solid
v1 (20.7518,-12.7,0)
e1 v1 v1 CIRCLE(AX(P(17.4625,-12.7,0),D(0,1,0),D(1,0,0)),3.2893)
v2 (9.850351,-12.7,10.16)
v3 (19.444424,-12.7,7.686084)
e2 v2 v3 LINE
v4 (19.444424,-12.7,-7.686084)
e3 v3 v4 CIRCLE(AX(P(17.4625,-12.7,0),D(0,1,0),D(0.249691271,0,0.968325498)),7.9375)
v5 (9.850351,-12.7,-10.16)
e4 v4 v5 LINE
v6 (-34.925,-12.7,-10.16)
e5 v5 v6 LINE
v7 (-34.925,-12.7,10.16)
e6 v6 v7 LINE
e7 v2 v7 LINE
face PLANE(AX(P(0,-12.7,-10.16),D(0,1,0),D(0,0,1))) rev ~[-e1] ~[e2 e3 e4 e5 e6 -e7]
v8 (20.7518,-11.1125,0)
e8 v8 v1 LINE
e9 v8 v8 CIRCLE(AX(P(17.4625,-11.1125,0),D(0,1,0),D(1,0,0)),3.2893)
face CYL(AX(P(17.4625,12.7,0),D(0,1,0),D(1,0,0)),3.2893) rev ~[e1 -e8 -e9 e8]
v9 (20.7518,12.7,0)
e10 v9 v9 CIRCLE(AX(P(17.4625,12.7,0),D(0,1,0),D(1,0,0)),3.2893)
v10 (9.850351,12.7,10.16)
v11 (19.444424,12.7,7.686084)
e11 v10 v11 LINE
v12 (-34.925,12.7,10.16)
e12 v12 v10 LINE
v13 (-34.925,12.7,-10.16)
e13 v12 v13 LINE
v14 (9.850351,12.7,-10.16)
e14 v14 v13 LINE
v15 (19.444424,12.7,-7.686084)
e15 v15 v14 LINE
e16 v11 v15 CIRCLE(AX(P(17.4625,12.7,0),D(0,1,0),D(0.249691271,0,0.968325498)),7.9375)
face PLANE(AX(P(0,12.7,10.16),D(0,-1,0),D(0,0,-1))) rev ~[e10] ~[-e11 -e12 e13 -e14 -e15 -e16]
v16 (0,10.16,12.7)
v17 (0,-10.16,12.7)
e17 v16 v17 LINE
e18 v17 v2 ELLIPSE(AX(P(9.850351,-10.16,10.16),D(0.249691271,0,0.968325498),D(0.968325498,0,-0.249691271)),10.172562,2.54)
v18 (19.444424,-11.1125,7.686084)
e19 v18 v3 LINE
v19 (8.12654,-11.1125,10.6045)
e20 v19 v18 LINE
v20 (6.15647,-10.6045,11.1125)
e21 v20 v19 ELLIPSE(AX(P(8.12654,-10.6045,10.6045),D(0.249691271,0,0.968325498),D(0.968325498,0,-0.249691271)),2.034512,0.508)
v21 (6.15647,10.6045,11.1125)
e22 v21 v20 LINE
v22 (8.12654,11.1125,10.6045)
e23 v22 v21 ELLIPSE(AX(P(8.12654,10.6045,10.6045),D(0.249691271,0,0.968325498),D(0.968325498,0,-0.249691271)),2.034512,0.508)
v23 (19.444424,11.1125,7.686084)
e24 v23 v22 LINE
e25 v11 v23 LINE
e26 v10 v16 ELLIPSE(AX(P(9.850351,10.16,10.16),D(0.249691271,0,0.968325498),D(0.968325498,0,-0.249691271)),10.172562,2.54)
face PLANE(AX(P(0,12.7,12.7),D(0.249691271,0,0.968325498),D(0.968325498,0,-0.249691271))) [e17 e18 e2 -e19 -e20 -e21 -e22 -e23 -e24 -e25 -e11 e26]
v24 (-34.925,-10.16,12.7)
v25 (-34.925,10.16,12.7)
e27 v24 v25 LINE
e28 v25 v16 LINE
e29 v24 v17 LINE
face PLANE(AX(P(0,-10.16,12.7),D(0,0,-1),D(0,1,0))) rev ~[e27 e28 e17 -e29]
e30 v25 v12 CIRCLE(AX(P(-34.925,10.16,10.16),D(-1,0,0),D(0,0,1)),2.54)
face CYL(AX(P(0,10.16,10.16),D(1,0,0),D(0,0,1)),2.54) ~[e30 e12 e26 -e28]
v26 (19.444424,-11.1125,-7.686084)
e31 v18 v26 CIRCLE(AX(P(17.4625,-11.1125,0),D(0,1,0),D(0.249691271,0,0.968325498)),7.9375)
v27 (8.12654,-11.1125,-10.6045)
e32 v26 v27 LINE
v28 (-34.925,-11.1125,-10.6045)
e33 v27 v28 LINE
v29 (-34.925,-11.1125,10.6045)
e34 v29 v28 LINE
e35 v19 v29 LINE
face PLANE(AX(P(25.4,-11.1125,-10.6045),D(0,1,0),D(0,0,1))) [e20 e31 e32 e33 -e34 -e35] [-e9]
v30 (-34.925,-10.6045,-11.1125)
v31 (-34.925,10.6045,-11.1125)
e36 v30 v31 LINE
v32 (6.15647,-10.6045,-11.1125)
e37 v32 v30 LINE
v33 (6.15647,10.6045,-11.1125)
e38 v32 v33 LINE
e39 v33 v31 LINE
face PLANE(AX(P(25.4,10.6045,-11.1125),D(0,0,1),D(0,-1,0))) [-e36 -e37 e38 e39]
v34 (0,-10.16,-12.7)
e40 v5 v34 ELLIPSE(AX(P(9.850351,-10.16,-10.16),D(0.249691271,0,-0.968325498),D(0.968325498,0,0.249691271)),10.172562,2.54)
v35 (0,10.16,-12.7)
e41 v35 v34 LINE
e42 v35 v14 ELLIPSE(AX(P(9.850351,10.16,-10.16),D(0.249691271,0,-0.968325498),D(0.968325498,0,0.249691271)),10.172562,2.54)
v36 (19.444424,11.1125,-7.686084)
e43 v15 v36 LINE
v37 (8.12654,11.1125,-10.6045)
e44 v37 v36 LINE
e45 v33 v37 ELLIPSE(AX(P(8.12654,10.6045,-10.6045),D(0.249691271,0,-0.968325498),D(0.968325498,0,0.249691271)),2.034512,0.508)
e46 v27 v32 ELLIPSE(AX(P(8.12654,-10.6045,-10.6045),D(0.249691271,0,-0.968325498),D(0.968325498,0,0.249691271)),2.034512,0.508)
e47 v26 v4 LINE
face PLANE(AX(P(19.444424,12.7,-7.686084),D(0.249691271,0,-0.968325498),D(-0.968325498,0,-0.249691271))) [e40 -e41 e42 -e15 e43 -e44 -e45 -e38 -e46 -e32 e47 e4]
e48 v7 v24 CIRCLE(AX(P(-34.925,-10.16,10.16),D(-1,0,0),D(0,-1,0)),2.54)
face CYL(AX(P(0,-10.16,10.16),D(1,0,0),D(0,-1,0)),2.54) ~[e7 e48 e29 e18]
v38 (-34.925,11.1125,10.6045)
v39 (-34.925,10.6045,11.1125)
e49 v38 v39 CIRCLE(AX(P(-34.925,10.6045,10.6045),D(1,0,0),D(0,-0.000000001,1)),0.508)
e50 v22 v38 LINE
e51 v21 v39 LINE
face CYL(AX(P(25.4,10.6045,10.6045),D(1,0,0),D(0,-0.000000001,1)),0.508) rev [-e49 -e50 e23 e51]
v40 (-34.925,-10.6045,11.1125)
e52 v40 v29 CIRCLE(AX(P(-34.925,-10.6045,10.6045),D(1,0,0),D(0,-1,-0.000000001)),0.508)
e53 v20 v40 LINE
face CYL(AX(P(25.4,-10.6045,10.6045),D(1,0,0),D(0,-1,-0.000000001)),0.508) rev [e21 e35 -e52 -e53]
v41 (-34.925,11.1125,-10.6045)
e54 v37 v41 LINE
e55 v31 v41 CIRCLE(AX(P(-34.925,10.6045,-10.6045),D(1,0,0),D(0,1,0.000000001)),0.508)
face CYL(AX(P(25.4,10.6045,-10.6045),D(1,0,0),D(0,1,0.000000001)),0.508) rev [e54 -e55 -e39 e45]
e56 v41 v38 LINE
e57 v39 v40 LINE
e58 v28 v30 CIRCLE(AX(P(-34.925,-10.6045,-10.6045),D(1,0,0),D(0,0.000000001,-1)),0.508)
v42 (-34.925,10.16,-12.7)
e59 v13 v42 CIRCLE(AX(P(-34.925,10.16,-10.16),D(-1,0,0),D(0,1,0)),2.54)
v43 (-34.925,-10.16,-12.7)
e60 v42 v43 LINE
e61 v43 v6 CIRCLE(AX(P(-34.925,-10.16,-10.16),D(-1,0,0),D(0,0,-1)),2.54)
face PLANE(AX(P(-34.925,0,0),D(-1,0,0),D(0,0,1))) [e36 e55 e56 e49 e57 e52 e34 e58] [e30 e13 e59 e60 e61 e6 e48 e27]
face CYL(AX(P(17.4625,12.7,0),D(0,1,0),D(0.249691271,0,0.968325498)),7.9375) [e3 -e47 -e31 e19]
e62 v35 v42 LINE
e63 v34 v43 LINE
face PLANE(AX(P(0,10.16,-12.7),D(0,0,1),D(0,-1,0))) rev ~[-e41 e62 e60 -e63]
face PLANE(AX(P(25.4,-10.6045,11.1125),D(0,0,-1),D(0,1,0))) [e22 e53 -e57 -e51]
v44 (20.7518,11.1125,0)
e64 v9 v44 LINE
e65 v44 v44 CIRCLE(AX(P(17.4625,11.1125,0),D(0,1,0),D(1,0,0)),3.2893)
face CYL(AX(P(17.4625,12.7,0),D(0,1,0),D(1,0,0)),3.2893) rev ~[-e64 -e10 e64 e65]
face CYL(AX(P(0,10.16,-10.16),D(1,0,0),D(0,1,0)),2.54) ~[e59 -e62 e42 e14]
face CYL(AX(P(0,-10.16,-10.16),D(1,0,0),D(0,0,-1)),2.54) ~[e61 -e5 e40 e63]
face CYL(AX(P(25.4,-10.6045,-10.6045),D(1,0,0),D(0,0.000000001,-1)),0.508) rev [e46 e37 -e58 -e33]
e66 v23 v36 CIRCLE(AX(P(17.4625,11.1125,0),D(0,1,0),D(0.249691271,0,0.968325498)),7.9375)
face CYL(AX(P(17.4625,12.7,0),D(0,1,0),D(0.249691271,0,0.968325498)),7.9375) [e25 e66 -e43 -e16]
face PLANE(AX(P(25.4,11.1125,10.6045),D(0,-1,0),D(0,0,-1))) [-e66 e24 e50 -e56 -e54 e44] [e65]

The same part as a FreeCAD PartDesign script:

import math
import FreeCAD as App
import Part
import Sketcher
from FreeCAD import Vector
Q = App.Units.Quantity

doc = App.newDocument("Part")
body = doc.addObject("PartDesign::Body", "Body")

sketch1 = doc.addObject("Sketcher::SketchObject", "Sketch")
body.addObject(sketch1)
sketch1.AttachmentSupport = (doc.YZ_Plane, [""])
sketch1.MapMode = "FlatFace"
sketch1.addGeometry([
    Part.LineSegment(Vector(12.7, -10.2, 0), Vector(12.7, 10.2, 0)),
    Part.ArcOfCircle(Part.Circle(Vector(10.2, 10.2, 0), Vector(0, 0, 1), 2.5), math.radians(0), math.radians(90)),
    Part.LineSegment(Vector(10.2, 12.7, 0), Vector(-10.2, 12.7, 0)),
    Part.ArcOfCircle(Part.Circle(Vector(-10.2, 10.2, 0), Vector(0, 0, 1), 2.5), math.radians(90), math.radians(180)),
    Part.LineSegment(Vector(-12.7, 10.2, 0), Vector(-12.7, -10.2, 0)),
    Part.ArcOfCircle(Part.Circle(Vector(-10.2, -10.2, 0), Vector(0, 0, 1), 2.5), math.radians(-180), math.radians(-90)),
    Part.LineSegment(Vector(-10.2, -12.7, 0), Vector(10.2, -12.7, 0)),
    Part.ArcOfCircle(Part.Circle(Vector(10.2, -10.2, 0), Vector(0, 0, 1), 2.5), math.radians(-90), math.radians(0)),
], False)
sketch1.addConstraint([
    Sketcher.Constraint("Tangent", 0, 2, 1, 1),
    Sketcher.Constraint("Tangent", 1, 2, 2, 1),
    Sketcher.Constraint("Tangent", 2, 2, 3, 1),
    Sketcher.Constraint("Tangent", 3, 2, 4, 1),
    Sketcher.Constraint("Tangent", 4, 2, 5, 1),
    Sketcher.Constraint("Tangent", 5, 2, 6, 1),
    Sketcher.Constraint("Tangent", 6, 2, 7, 1),
    Sketcher.Constraint("Tangent", 7, 2, 0, 1),
    Sketcher.Constraint("Vertical", 0),
    Sketcher.Constraint("Horizontal", 2),
    Sketcher.Constraint("Vertical", 4),
    Sketcher.Constraint("Horizontal", 6),
    Sketcher.Constraint("Equal", 1, 3),
    Sketcher.Constraint("Equal", 3, 5),
    Sketcher.Constraint("Equal", 5, 7),
    Sketcher.Constraint("Symmetric", 1, 3, 5, 3, -1, 1),
    Sketcher.Constraint("Equal", 6, 0),
    Sketcher.Constraint("Radius", 1, Q("0.1 in")),
    Sketcher.Constraint("DistanceX", 2, 2, 2, 1, Q("0.8 in")),
])
pad1 = doc.addObject("PartDesign::Pad", "Pad")
body.addObject(pad1)
pad1.Profile = sketch1
pad1.Type = "TwoLengths"
pad1.Length = Q("1 in")
pad1.Length2 = Q("1.375 in")

sketch2 = doc.addObject("Sketcher::SketchObject", "Sketch001")
body.addObject(sketch2)
sketch2.AttachmentSupport = (doc.YZ_Plane, [""])
sketch2.MapMode = "FlatFace"
sketch2.AttachmentOffset = App.Placement(Vector(0, 0, 1 * 25.4), App.Rotation())
sketch2.addGeometry([
    Part.LineSegment(Vector(11.1, -10.6, 0), Vector(11.1, 10.6, 0)),
    Part.ArcOfCircle(Part.Circle(Vector(10.6, 10.6, 0), Vector(0, 0, 1), 0.5), math.radians(0), math.radians(90)),
    Part.LineSegment(Vector(10.6, 11.1, 0), Vector(-10.6, 11.1, 0)),
    Part.ArcOfCircle(Part.Circle(Vector(-10.6, 10.6, 0), Vector(0, 0, 1), 0.5), math.radians(90), math.radians(180)),
    Part.LineSegment(Vector(-11.1, 10.6, 0), Vector(-11.1, -10.6, 0)),
    Part.ArcOfCircle(Part.Circle(Vector(-10.6, -10.6, 0), Vector(0, 0, 1), 0.5), math.radians(180), math.radians(270)),
    Part.LineSegment(Vector(-10.6, -11.1, 0), Vector(10.6, -11.1, 0)),
    Part.ArcOfCircle(Part.Circle(Vector(10.6, -10.6, 0), Vector(0, 0, 1), 0.5), math.radians(-90), math.radians(0)),
], False)
sketch2.addConstraint([
    Sketcher.Constraint("Tangent", 0, 2, 1, 1),
    Sketcher.Constraint("Tangent", 1, 2, 2, 1),
    Sketcher.Constraint("Tangent", 2, 2, 3, 1),
    Sketcher.Constraint("Tangent", 3, 2, 4, 1),
    Sketcher.Constraint("Tangent", 4, 2, 5, 1),
    Sketcher.Constraint("Tangent", 5, 2, 6, 1),
    Sketcher.Constraint("Tangent", 6, 2, 7, 1),
    Sketcher.Constraint("Tangent", 7, 2, 0, 1),
    Sketcher.Constraint("Vertical", 0),
    Sketcher.Constraint("Horizontal", 2),
    Sketcher.Constraint("Vertical", 4),
    Sketcher.Constraint("Horizontal", 6),
    Sketcher.Constraint("Equal", 1, 3),
    Sketcher.Constraint("Equal", 3, 5),
    Sketcher.Constraint("Equal", 5, 7),
    Sketcher.Constraint("Symmetric", 1, 3, 5, 3, -1, 1),
    Sketcher.Constraint("Equal", 6, 0),
    Sketcher.Constraint("Radius", 1, Q("0.02 in")),
    Sketcher.Constraint("DistanceX", 2, 2, 2, 1, Q("0.835 in")),
])
pocket1 = doc.addObject("PartDesign::Pocket", "Pocket")
body.addObject(pocket1)
pocket1.Profile = sketch2
pocket1.Type = "ThroughAll"

sketch3 = doc.addObject("Sketcher::SketchObject", "Sketch002")
body.addObject(sketch3)
sketch3.AttachmentSupport = (doc.XZ_Plane, [""])
sketch3.MapMode = "FlatFace"
sketch3.AttachmentOffset = App.Placement(Vector(0, 0, -0.5 * 25.4), App.Rotation())
sketch3.addGeometry([
    Part.LineSegment(Vector(51, -13, 0), Vector(0, -13, 0)),
    Part.LineSegment(Vector(0, -13, 0), Vector(19, -8, 0)),
    Part.ArcOfCircle(Part.Circle(Vector(17, 0, 0), Vector(0, 0, 1), 8), math.radians(-76), math.radians(76)),
    Part.LineSegment(Vector(19, 8, 0), Vector(0, 13, 0)),
    Part.LineSegment(Vector(0, 13, 0), Vector(51, 13, 0)),
    Part.LineSegment(Vector(51, 13, 0), Vector(51, -13, 0)),
], False)
sketch3.addConstraint([
    Sketcher.Constraint("Coincident", 0, 2, 1, 1),
    Sketcher.Constraint("Tangent", 1, 2, 2, 1),
    Sketcher.Constraint("Tangent", 2, 2, 3, 1),
    Sketcher.Constraint("Coincident", 3, 2, 4, 1),
    Sketcher.Constraint("Coincident", 4, 2, 5, 1),
    Sketcher.Constraint("Coincident", 5, 2, 0, 1),
    Sketcher.Constraint("Horizontal", 0),
    Sketcher.Constraint("Horizontal", 4),
    Sketcher.Constraint("Vertical", 5),
    Sketcher.Constraint("Symmetric", 0, 2, 3, 2, -1, 1),
    Sketcher.Constraint("Symmetric", 1, 2, 2, 2, -1),
    Sketcher.Constraint("DistanceX", 0, 2, 0, 1, Q("2 in")),
    Sketcher.Constraint("DistanceY", 5, 2, 5, 1, Q("1 in")),
    Sketcher.Constraint("Radius", 2, Q("0.3125 in")),
    Sketcher.Constraint("DistanceX", -1, 1, 2, 3, Q("0.6875 in")),
])
pocket2 = doc.addObject("PartDesign::Pocket", "Pocket001")
body.addObject(pocket2)
pocket2.Profile = sketch3
pocket2.Type = "ThroughAll"
pocket2.Reversed = True

sketch4 = doc.addObject("Sketcher::SketchObject", "Sketch003")
body.addObject(sketch4)
sketch4.AttachmentSupport = (doc.XZ_Plane, [""])
sketch4.MapMode = "FlatFace"
sketch4.AttachmentOffset = App.Placement(Vector(0, 0, -0.5 * 25.4), App.Rotation())
sketch4.addGeometry(Part.Circle(Vector(17.5, 0, 0), Vector(0, 0, 1), 3.3), False)
sketch4.addConstraint([
    Sketcher.Constraint("PointOnObject", 0, 3, -1),
    Sketcher.Constraint("Diameter", 0, Q("0.259 in")),
    Sketcher.Constraint("DistanceX", -1, 1, 0, 3, Q("0.6875 in")),
])
pocket3 = doc.addObject("PartDesign::Pocket", "Pocket002")
body.addObject(pocket3)
pocket3.Profile = sketch4
pocket3.Type = "ThroughAll"
pocket3.Reversed = True

doc.recompute()
